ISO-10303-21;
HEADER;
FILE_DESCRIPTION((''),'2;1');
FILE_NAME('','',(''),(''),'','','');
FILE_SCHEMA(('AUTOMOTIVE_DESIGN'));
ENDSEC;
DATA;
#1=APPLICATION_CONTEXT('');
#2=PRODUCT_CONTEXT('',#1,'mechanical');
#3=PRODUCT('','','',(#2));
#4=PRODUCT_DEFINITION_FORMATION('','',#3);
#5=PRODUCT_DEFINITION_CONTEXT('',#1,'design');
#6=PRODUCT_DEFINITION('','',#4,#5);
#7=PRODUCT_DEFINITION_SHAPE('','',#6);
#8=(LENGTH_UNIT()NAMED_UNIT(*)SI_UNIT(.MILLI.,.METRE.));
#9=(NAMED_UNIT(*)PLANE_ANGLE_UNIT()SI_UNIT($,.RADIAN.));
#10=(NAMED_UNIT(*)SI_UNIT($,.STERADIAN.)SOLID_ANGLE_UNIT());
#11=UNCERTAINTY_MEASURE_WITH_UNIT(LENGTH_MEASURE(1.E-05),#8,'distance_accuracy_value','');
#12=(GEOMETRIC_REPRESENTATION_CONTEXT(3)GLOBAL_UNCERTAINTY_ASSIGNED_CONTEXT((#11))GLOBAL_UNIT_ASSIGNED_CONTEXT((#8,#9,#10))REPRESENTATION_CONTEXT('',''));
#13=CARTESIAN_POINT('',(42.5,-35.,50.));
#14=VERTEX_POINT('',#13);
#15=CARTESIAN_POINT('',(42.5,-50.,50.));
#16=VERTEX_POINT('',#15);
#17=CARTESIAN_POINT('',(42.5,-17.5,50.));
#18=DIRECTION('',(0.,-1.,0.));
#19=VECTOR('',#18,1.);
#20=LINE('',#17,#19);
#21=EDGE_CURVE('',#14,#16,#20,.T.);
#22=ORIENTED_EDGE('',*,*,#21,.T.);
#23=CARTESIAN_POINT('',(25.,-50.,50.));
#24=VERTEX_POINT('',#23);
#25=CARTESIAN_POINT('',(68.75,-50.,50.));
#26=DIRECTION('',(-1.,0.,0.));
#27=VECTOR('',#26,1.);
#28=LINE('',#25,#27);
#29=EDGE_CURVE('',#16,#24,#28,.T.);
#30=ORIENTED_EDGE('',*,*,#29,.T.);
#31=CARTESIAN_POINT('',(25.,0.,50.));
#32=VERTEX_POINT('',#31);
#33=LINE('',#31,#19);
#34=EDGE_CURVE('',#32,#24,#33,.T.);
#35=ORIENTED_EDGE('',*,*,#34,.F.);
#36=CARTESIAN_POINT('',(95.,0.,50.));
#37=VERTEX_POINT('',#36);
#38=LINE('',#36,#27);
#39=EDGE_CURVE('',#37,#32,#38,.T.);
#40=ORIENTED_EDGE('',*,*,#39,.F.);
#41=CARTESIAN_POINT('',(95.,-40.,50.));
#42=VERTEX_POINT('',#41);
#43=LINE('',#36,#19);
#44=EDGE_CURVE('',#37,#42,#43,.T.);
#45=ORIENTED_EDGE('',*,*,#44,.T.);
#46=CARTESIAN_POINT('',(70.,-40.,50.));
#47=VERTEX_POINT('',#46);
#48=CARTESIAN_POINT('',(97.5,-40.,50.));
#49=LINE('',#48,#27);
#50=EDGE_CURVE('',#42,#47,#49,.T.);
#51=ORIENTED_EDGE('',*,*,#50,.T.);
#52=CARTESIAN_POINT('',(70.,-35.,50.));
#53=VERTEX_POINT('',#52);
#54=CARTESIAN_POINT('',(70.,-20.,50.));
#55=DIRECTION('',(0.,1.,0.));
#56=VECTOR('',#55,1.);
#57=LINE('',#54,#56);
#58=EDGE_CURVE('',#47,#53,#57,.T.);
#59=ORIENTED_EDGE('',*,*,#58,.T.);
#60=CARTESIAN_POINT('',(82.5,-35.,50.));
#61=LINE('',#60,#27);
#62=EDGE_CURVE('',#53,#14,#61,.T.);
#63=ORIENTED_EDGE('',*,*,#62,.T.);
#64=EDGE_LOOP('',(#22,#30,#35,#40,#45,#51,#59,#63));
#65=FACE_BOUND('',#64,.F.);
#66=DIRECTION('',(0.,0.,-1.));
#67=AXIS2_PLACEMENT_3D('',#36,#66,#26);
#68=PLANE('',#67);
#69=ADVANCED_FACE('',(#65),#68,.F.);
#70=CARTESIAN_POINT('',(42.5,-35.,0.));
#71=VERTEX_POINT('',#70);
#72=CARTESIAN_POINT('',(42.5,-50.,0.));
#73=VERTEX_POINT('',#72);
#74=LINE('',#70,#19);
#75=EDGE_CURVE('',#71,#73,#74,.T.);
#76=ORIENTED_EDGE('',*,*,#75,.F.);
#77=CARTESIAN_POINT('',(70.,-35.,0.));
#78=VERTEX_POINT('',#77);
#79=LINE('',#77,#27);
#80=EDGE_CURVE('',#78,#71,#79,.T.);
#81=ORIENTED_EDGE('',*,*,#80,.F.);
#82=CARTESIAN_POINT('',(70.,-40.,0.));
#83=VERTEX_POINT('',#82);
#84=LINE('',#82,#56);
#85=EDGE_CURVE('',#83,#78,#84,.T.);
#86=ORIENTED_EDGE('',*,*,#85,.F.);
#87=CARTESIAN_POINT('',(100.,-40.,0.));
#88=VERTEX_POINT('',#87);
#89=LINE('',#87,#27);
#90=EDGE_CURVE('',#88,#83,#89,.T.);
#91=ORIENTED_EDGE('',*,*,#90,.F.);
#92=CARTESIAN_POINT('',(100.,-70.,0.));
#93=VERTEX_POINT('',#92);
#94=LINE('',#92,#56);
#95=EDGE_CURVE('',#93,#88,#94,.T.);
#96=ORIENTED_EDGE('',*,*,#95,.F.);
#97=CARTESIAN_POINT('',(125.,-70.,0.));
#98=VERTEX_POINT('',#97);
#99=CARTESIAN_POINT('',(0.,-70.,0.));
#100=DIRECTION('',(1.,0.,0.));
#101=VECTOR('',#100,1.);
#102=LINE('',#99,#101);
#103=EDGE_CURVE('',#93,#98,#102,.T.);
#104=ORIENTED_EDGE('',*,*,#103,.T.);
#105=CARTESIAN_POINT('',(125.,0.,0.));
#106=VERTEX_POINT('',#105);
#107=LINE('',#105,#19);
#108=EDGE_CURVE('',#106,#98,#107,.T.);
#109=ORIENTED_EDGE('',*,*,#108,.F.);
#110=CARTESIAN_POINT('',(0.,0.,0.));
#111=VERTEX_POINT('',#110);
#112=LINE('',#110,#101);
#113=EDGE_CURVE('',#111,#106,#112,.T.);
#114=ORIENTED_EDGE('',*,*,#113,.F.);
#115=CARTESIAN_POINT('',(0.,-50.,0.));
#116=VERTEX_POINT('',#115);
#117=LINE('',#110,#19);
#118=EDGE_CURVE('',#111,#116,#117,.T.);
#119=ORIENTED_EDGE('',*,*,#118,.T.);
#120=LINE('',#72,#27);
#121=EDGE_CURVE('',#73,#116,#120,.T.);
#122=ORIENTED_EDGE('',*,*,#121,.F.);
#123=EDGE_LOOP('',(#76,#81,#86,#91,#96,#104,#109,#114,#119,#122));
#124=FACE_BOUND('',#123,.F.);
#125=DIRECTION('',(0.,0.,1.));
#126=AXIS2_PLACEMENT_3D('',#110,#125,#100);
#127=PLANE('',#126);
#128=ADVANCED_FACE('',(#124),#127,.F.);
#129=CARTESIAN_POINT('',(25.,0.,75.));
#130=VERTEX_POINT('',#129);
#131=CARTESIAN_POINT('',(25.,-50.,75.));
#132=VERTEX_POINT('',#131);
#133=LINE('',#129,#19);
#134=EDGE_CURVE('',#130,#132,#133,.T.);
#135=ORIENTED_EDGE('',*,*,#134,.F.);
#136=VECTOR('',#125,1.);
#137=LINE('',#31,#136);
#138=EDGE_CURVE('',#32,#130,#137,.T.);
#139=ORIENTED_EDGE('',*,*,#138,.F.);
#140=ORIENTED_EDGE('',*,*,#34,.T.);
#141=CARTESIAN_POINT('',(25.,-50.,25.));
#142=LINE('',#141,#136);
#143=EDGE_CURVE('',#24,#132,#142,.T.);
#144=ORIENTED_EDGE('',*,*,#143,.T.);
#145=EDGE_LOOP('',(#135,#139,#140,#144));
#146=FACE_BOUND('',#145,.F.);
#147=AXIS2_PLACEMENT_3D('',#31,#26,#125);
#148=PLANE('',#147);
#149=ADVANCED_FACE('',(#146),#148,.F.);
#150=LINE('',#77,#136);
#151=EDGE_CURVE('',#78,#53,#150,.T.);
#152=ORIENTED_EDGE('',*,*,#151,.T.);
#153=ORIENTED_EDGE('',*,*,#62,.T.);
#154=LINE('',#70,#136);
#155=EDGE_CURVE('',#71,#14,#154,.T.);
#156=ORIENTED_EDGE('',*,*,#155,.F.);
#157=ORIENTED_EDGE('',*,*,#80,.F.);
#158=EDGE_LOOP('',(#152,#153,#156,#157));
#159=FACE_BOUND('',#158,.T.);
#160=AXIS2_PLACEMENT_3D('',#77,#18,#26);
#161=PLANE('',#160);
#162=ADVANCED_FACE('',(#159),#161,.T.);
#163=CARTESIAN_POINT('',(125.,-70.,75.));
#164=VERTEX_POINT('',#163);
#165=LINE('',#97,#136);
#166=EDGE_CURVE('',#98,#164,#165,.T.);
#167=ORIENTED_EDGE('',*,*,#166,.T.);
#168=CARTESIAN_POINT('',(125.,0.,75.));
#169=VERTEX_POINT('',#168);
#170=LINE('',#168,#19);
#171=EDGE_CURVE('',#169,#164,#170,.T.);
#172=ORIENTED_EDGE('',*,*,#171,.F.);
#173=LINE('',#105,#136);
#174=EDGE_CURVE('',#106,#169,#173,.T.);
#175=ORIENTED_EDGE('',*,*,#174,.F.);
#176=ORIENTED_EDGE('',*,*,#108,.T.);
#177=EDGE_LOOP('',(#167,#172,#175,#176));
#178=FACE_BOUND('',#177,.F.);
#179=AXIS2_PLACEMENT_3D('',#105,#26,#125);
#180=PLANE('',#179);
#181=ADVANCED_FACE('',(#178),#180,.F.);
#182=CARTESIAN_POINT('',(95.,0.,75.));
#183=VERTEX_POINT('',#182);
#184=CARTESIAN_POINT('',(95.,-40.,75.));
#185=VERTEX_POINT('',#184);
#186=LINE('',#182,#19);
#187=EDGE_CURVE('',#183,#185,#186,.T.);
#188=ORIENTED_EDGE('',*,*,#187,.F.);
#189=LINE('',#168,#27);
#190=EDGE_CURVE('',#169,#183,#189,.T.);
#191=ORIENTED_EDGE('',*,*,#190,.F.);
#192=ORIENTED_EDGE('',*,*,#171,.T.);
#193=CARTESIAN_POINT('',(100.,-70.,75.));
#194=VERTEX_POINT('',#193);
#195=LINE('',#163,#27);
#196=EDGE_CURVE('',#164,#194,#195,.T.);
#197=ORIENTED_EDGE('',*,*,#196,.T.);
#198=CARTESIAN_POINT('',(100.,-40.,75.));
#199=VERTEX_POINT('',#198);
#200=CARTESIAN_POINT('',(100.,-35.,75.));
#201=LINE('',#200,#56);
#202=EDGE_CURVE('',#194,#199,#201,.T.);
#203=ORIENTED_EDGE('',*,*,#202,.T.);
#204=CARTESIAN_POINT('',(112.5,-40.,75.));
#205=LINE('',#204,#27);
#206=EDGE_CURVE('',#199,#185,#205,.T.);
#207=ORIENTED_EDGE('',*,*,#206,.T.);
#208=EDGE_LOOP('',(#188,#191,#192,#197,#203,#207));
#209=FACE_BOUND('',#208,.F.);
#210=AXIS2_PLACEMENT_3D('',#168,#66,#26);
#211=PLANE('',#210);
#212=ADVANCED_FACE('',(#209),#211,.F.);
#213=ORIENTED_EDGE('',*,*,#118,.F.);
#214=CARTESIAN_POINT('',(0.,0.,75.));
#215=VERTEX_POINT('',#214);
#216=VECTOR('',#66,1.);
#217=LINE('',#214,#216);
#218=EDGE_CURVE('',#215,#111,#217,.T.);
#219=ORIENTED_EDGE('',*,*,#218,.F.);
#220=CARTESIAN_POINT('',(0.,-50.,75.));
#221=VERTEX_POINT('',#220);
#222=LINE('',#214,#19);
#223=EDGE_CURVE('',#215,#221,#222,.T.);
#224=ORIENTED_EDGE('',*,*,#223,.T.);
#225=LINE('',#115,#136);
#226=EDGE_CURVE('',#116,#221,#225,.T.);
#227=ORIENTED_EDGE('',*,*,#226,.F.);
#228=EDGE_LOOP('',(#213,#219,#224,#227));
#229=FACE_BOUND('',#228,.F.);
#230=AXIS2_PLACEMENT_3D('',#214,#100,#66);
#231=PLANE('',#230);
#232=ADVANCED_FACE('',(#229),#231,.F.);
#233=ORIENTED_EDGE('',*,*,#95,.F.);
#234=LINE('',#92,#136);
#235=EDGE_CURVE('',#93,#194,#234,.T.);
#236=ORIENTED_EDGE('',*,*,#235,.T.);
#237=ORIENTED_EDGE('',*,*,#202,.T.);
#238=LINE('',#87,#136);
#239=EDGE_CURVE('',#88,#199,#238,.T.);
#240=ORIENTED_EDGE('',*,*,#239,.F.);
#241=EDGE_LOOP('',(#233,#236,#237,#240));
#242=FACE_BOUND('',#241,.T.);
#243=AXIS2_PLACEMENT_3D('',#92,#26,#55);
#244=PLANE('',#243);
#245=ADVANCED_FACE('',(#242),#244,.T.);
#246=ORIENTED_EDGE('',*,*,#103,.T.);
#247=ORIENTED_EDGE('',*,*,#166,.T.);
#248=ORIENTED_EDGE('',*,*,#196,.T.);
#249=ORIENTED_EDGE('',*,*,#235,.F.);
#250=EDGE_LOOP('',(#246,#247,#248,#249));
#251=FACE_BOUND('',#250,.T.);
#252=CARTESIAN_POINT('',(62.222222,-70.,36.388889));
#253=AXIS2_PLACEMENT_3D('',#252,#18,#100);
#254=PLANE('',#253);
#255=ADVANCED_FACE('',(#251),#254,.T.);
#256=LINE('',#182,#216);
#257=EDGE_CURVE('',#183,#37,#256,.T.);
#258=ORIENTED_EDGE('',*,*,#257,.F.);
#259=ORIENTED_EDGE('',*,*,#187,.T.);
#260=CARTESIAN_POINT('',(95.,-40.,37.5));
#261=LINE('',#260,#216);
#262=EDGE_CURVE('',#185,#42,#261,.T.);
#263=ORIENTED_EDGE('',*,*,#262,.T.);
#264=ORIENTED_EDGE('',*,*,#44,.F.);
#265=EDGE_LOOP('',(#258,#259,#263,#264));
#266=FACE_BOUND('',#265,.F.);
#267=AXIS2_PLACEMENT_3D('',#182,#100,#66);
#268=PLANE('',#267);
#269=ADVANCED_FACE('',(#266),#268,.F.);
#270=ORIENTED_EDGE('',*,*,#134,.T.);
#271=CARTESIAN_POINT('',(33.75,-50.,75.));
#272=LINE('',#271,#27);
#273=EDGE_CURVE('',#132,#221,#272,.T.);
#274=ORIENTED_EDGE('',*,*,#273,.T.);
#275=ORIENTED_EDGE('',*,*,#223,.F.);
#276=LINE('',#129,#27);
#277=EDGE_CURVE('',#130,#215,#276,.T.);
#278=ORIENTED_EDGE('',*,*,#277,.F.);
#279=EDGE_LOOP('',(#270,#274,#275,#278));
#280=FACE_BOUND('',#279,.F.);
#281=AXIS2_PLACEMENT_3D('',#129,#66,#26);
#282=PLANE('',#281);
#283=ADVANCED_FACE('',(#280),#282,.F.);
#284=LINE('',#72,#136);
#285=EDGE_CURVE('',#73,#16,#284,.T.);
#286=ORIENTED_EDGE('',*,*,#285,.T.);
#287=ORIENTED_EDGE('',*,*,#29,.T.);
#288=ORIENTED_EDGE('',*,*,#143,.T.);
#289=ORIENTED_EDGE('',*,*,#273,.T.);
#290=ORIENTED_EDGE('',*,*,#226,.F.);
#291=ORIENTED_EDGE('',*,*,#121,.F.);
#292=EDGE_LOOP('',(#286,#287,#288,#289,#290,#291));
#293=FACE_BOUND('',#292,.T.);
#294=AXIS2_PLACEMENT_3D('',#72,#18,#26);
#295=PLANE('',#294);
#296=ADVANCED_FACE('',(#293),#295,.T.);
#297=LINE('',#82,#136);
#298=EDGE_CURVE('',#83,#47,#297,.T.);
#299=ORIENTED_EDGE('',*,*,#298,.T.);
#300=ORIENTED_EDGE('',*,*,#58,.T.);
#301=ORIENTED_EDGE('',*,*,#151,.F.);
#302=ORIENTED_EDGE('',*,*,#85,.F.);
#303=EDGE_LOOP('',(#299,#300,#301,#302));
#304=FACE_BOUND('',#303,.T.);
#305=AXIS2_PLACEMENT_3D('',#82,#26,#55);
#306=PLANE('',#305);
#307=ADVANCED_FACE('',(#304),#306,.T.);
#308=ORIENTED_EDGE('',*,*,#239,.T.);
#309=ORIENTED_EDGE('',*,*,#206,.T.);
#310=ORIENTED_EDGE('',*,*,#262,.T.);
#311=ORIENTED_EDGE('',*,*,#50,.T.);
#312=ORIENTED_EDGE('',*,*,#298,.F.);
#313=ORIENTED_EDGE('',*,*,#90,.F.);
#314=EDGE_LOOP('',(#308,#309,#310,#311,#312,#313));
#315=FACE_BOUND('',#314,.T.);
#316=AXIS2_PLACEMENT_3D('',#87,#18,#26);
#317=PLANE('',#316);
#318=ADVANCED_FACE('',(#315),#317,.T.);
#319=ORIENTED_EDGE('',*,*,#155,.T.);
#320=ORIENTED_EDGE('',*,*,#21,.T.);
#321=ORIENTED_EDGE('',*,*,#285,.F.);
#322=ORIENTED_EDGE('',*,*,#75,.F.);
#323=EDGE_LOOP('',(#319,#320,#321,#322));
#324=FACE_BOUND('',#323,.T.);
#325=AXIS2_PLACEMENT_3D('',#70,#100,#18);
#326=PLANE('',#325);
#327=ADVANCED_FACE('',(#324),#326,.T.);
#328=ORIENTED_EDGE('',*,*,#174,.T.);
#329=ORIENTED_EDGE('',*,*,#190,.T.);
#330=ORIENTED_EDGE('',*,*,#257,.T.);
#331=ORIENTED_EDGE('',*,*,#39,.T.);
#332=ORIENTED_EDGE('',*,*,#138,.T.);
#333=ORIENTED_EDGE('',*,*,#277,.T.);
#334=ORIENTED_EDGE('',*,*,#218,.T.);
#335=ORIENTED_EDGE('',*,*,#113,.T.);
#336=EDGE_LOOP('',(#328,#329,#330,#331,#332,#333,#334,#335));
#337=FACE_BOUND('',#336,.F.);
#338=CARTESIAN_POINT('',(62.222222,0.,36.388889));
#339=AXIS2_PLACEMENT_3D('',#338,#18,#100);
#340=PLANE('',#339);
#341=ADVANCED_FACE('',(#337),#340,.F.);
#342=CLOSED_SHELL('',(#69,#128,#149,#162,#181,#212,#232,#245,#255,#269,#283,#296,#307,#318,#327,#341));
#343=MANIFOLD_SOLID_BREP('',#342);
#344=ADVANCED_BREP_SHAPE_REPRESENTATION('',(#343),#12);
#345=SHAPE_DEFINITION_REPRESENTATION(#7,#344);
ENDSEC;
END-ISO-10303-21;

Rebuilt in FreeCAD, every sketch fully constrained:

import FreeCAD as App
import Part
import Sketcher


def add_polygon(sketch, points):
    """Adds a closed chain of lines whose ends are joined by coincident constraints."""
    first, n = sketch.GeometryCount, len(points)
    for a, b in zip(points, points[1:] + points[:1]):
        sketch.addGeometry(Part.LineSegment(App.Vector(*a, 0), App.Vector(*b, 0)), False)
    for i in range(n):
        sketch.addConstraint(Sketcher.Constraint("Coincident", first + i, 2, first + (i + 1) % n, 1))

doc = App.newDocument("Part")
body = doc.addObject("PartDesign::Body", "Body")

# Sketch on XZ plane
sketch1 = body.newObject("Sketcher::SketchObject", "Sketch")
sketch1.AttachmentSupport = (doc.getObject("XZ_Plane"), [""])
sketch1.MapMode = "FlatFace"
add_polygon(sketch1, [(0, 75), (0, 0), (125, 0), (125, 75), (95, 75), (95, 50), (25, 50), (25, 75)])  # lines 0-7
sketch1.addConstraint([
    Sketcher.Constraint("Vertical", 0),
    Sketcher.Constraint("Horizontal", 1),
    Sketcher.Constraint("Vertical", 2),
    Sketcher.Constraint("Horizontal", 3),
    Sketcher.Constraint("Vertical", 4),
    Sketcher.Constraint("Horizontal", 5),
    Sketcher.Constraint("Vertical", 6),
    Sketcher.Constraint("Horizontal", 7),
    Sketcher.Constraint("Coincident", 0, 2, -1, 1),
    Sketcher.Constraint("Horizontal", 3, 2, 6, 2),
    Sketcher.Constraint("Equal", 7, 4),
    Sketcher.Constraint("DistanceX", 1, 1, 1, 2, 125.0),
    Sketcher.Constraint("DistanceX", 3, 2, 3, 1, 30.0),
    Sketcher.Constraint("DistanceX", 5, 2, 5, 1, 70.0),
    Sketcher.Constraint("DistanceY", 0, 2, 0, 1, 75.0),
])
pad1 = body.newObject("PartDesign::Pad", "Pad")
pad1.Profile = sketch1
pad1.Length = 70

# Sketch on XY plane
sketch2 = body.newObject("Sketcher::SketchObject", "Sketch001")
sketch2.AttachmentSupport = (doc.getObject("XY_Plane"), [""])
sketch2.MapMode = "FlatFace"
add_polygon(sketch2, [(0, -70), (100, -70), (100, -40), (70, -40), (70, -35), (42.5, -35), (42.5, -50), (0, -50)])  # lines 0-7
sketch2.addConstraint([
    Sketcher.Constraint("Horizontal", 0),
    Sketcher.Constraint("Vertical", 1),
    Sketcher.Constraint("Horizontal", 2),
    Sketcher.Constraint("Vertical", 3),
    Sketcher.Constraint("Horizontal", 4),
    Sketcher.Constraint("Vertical", 5),
    Sketcher.Constraint("Horizontal", 6),
    Sketcher.Constraint("Vertical", 7),
    Sketcher.Constraint("PointOnObject", 6, 2, -2),
    Sketcher.Constraint("Equal", 2, 1),
    Sketcher.Constraint("DistanceX", 0, 1, 0, 2, 100.0),
    Sketcher.Constraint("DistanceX", 2, 2, 2, 1, 30.0),
    Sketcher.Constraint("DistanceY", 3, 1, 3, 2, 5.0),
    Sketcher.Constraint("DistanceY", 5, 2, 5, 1, 15.0),
    Sketcher.Constraint("DistanceX", 4, 2, 4, 1, 27.5),
    Sketcher.Constraint("DistanceY", 0, 2, -1, 1, 70.0),
])
pocket1 = body.newObject("PartDesign::Pocket", "Pocket")
pocket1.Profile = sketch2
pocket1.Type = "ThroughAll"
pocket1.Reversed = True

doc.recompute()
